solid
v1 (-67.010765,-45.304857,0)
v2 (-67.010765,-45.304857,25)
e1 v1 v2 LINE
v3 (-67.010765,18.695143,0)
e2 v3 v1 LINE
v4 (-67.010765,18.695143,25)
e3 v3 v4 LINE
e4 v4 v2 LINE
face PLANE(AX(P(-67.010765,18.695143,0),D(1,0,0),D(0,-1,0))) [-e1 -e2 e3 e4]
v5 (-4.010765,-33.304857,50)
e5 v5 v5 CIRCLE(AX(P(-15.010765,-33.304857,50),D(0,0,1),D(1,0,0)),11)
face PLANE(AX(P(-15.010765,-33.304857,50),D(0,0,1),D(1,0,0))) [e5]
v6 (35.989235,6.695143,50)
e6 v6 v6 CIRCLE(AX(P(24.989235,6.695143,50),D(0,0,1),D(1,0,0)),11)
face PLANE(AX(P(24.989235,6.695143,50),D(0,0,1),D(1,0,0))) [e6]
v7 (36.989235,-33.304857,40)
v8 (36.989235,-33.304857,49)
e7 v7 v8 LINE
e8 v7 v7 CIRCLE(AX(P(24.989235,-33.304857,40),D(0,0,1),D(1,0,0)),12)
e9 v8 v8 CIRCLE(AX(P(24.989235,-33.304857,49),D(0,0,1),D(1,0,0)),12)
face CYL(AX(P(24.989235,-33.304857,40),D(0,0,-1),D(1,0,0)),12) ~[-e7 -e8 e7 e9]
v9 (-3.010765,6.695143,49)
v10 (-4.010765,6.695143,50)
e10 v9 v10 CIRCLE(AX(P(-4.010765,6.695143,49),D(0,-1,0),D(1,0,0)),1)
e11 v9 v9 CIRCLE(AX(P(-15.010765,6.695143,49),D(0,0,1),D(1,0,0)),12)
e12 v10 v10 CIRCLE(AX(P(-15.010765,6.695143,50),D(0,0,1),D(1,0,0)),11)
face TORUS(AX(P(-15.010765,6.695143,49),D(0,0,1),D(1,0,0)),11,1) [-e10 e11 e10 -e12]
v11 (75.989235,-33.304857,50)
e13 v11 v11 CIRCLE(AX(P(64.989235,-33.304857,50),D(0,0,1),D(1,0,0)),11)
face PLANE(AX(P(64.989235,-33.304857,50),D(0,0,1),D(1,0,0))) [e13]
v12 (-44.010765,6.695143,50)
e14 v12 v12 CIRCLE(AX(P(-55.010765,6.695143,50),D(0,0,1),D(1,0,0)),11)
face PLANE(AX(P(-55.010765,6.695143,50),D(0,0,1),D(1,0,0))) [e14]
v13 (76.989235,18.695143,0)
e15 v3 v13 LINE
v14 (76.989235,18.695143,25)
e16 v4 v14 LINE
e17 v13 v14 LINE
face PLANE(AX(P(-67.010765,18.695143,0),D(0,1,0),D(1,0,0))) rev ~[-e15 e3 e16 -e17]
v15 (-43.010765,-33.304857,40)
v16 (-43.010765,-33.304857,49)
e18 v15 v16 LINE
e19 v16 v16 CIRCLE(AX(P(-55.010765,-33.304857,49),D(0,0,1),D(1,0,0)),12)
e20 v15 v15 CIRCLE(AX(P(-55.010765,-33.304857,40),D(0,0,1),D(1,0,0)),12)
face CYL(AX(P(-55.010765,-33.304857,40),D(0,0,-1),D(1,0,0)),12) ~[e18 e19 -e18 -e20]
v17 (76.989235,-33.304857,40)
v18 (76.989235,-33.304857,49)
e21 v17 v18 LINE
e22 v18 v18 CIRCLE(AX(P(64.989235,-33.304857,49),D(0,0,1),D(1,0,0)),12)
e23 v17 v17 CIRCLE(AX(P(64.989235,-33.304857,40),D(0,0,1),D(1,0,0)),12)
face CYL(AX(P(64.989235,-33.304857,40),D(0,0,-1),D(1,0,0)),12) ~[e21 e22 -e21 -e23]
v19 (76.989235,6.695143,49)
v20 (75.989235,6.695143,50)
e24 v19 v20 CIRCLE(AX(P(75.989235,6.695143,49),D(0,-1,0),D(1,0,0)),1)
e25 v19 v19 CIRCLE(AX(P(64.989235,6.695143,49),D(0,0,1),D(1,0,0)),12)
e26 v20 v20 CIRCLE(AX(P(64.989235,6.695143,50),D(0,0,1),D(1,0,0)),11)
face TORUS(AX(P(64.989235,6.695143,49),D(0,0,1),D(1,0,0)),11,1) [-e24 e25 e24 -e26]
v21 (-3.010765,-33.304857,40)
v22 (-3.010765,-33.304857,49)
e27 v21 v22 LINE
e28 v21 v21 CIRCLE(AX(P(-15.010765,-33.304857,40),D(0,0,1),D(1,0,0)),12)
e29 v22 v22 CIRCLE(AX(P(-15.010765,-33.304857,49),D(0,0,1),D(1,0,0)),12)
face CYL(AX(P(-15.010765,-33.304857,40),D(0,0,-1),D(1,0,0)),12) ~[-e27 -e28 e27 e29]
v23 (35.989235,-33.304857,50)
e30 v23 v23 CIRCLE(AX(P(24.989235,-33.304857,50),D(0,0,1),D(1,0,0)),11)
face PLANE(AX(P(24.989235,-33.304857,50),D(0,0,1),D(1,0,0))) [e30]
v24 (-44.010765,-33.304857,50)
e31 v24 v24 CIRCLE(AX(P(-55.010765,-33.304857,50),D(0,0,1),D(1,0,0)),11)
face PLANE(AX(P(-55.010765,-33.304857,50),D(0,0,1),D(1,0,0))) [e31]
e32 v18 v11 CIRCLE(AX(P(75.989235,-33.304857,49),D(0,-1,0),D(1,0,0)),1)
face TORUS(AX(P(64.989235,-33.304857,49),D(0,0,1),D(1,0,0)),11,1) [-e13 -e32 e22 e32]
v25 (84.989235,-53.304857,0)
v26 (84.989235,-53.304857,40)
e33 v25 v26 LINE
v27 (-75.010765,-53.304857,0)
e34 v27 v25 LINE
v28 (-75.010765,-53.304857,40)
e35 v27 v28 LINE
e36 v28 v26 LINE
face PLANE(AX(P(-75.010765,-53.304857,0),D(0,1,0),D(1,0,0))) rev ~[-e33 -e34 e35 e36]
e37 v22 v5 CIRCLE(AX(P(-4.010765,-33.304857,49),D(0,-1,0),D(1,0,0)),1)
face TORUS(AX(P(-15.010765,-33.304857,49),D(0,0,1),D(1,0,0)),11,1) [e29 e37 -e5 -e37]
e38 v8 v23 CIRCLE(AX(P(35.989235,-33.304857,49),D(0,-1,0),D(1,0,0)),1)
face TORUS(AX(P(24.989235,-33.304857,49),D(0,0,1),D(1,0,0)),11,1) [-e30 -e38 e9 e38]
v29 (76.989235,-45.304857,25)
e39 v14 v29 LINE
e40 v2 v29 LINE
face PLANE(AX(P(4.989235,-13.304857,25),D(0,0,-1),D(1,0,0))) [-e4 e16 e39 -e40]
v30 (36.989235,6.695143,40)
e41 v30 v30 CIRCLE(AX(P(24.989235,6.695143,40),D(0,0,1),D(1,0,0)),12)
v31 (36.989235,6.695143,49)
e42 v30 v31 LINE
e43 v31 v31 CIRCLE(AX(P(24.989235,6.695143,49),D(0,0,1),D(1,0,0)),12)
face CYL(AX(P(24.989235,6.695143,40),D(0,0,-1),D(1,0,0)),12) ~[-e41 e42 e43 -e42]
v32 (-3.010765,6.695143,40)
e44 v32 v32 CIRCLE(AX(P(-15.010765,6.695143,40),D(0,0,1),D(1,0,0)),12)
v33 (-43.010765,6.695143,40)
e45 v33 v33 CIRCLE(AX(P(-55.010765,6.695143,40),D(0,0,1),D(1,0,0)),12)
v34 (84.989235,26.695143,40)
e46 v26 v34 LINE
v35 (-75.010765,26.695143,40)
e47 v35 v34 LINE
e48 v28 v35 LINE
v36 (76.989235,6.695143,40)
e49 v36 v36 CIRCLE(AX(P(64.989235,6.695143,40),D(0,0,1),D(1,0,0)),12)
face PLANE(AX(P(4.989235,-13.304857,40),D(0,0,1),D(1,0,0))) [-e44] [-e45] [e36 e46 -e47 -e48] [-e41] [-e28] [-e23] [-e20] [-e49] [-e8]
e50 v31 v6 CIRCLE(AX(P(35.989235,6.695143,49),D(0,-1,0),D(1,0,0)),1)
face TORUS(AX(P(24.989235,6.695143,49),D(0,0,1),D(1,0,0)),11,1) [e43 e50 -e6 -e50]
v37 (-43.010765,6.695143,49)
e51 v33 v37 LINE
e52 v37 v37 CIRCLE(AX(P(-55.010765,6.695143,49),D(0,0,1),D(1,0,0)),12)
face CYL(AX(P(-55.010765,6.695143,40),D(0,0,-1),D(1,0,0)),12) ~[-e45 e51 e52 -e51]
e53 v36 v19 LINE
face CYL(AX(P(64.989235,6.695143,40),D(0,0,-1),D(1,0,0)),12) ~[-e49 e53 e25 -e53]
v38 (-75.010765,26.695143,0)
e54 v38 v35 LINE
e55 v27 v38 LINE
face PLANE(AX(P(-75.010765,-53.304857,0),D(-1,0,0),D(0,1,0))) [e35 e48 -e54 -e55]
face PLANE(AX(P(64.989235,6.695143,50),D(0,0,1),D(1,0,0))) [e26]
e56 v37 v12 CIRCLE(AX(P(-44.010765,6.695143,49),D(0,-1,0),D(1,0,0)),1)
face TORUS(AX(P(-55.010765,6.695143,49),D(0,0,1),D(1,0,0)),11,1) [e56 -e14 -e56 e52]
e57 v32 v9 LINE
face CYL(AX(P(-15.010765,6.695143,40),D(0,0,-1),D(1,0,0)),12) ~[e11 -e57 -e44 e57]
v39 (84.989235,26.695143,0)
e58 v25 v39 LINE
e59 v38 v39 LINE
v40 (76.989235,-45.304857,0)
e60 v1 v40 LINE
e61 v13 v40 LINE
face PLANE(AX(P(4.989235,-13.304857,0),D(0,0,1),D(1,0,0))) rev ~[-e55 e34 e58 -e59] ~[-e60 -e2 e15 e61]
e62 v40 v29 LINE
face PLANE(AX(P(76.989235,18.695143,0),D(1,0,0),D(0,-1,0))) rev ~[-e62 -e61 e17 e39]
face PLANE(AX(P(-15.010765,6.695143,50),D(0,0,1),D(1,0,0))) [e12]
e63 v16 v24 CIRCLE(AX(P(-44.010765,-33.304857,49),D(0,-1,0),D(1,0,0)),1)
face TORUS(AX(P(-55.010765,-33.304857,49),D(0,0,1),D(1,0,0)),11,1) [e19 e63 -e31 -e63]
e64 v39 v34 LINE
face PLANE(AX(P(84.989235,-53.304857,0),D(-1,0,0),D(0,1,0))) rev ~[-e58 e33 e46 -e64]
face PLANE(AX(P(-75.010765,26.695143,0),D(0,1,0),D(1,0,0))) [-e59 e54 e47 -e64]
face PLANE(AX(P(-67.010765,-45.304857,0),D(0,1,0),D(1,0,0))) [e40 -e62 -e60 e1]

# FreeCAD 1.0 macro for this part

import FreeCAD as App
import Part
import Sketcher

V = App.Vector
Q = App.Units.Quantity


def edges_at(feature, points):
    """Names of the edges that pass closest to the given points."""
    edges = feature.Shape.Edges
    near = lambda p: min(range(len(edges)), key=lambda i: edges[i].distToShape(Part.Vertex(*p))[0])
    return sorted({f"Edge{near(p) + 1}" for p in points})


def add_polygon(sketch, points):
    """Adds a closed chain of lines whose ends are joined by coincident constraints."""
    first, n = sketch.GeometryCount, len(points)
    for a, b in zip(points, points[1:] + points[:1]):
        sketch.addGeometry(Part.LineSegment(App.Vector(*a, 0), App.Vector(*b, 0)), False)
    for i in range(n):
        sketch.addConstraint(Sketcher.Constraint("Coincident", first + i, 2, first + (i + 1) % n, 1))

doc = App.newDocument("Part")
body = doc.addObject("PartDesign::Body", "Body")

# Sketch on XY plane
sketch1 = doc.addObject("Sketcher::SketchObject", "Sketch")
body.addObject(sketch1)
sketch1.AttachmentSupport = (doc.XY_Plane, [""])
sketch1.MapMode = "FlatFace"
add_polygon(sketch1, [(-75, 27), (-75, -53), (85, -53), (85, 27)])  # lines 0-3
sketch1.addConstraint(Sketcher.Constraint("Vertical", 0))
sketch1.addConstraint(Sketcher.Constraint("Horizontal", 1))
sketch1.addConstraint(Sketcher.Constraint("Vertical", 2))
sketch1.addConstraint(Sketcher.Constraint("Horizontal", 3))
sketch1.addConstraint(Sketcher.Constraint("DistanceX", 1, 1, 1, 2, Q("160 mm")))
sketch1.addConstraint(Sketcher.Constraint("DistanceY", 0, 2, 0, 1, Q("80 mm")))
sketch1.addConstraint(Sketcher.Constraint("DistanceX", 0, 2, -1, 1, Q("75.010765 mm")))
sketch1.addConstraint(Sketcher.Constraint("DistanceY", 0, 2, -1, 1, Q("53.304857 mm")))
pad1 = doc.addObject("PartDesign::Pad", "Pad")
body.addObject(pad1)
pad1.Profile = sketch1
pad1.Length = 40

# Sketch on XY plane
sketch2 = doc.addObject("Sketcher::SketchObject", "Sketch001")
body.addObject(sketch2)
sketch2.AttachmentSupport = (doc.XY_Plane, [""])
sketch2.MapMode = "FlatFace"
add_polygon(sketch2, [(-67, -45), (-67, 19), (77, 19), (77, -45)])  # lines 0-3
sketch2.addConstraint(Sketcher.Constraint("Vertical", 0))
sketch2.addConstraint(Sketcher.Constraint("Horizontal", 1))
sketch2.addConstraint(Sketcher.Constraint("Vertical", 2))
sketch2.addConstraint(Sketcher.Constraint("Horizontal", 3))
sketch2.addConstraint(Sketcher.Constraint("DistanceX", 1, 1, 1, 2, Q("144 mm")))
sketch2.addConstraint(Sketcher.Constraint("DistanceY", 0, 1, 0, 2, Q("64 mm")))
sketch2.addConstraint(Sketcher.Constraint("DistanceX", 0, 2, -1, 1, Q("67.010765 mm")))
sketch2.addConstraint(Sketcher.Constraint("DistanceY", -1, 1, 0, 2, Q("18.695143 mm")))
pocket1 = doc.addObject("PartDesign::Pocket", "Pocket")
body.addObject(pocket1)
pocket1.Profile = sketch2
pocket1.Length = 25
pocket1.Reversed = True

# Sketch on XY plane
sketch3 = doc.addObject("Sketcher::SketchObject", "Sketch002")
body.addObject(sketch3)
sketch3.AttachmentSupport = (doc.XY_Plane, [""])
sketch3.MapMode = "FlatFace"
sketch3.AttachmentOffset = App.Placement(V(0, 0, 40), App.Rotation())
sketch3.addGeometry(Part.Circle(V(-55, 7, 0), V(0, 0, 1), 12), False)
sketch3.addGeometry(Part.Circle(V(-55, -33, 0), V(0, 0, 1), 12), False)
sketch3.addGeometry(Part.Circle(V(-15, 7, 0), V(0, 0, 1), 12), False)
sketch3.addGeometry(Part.Circle(V(-15, -33, 0), V(0, 0, 1), 12), False)
sketch3.addGeometry(Part.Circle(V(25, 7, 0), V(0, 0, 1), 12), False)
sketch3.addGeometry(Part.Circle(V(25, -33, 0), V(0, 0, 1), 12), False)
sketch3.addGeometry(Part.Circle(V(65, 7, 0), V(0, 0, 1), 12), False)
sketch3.addGeometry(Part.Circle(V(65, -33, 0), V(0, 0, 1), 12), False)
sketch3.addConstraint(Sketcher.Constraint("Equal", 0, 1))
sketch3.addConstraint(Sketcher.Constraint("Equal", 1, 2))
sketch3.addConstraint(Sketcher.Constraint("Equal", 2, 3))
sketch3.addConstraint(Sketcher.Constraint("Equal", 3, 4))
sketch3.addConstraint(Sketcher.Constraint("Equal", 4, 5))
sketch3.addConstraint(Sketcher.Constraint("Equal", 5, 6))
sketch3.addConstraint(Sketcher.Constraint("Equal", 6, 7))
sketch3.addConstraint(Sketcher.Constraint("Horizontal", 0, 3, 2, 3))
sketch3.addConstraint(Sketcher.Constraint("Horizontal", 1, 3, 3, 3))
sketch3.addConstraint(Sketcher.Constraint("Horizontal", 2, 3, 4, 3))
sketch3.addConstraint(Sketcher.Constraint("Horizontal", 3, 3, 5, 3))
sketch3.addConstraint(Sketcher.Constraint("Horizontal", 4, 3, 6, 3))
sketch3.addConstraint(Sketcher.Constraint("Horizontal", 5, 3, 7, 3))
sketch3.addConstraint(Sketcher.Constraint("Vertical", 0, 3, 1, 3))
sketch3.addConstraint(Sketcher.Constraint("Vertical", 2, 3, 3, 3))
sketch3.addConstraint(Sketcher.Constraint("Vertical", 4, 3, 5, 3))
sketch3.addConstraint(Sketcher.Constraint("Vertical", 6, 3, 7, 3))
sketch3.addConstraint(Sketcher.Constraint("Diameter", 0, Q("24 mm")))
sketch3.addConstraint(Sketcher.Constraint("DistanceY", 1, 3, 0, 3, Q("40 mm")))
sketch3.addConstraint(Sketcher.Constraint("DistanceX", 0, 3, 2, 3, Q("40 mm")))
sketch3.addConstraint(Sketcher.Constraint("DistanceX", 2, 3, 4, 3, Q("40 mm")))
sketch3.addConstraint(Sketcher.Constraint("DistanceX", 4, 3, 6, 3, Q("40 mm")))
sketch3.addConstraint(Sketcher.Constraint("DistanceX", 0, 3, -1, 1, Q("55.010765 mm")))
sketch3.addConstraint(Sketcher.Constraint("DistanceY", -1, 1, 0, 3, Q("6.695143 mm")))
pad2 = doc.addObject("PartDesign::Pad", "Pad001")
body.addObject(pad2)
pad2.Profile = sketch3
pad2.Length = 10
doc.recompute()

fillet = doc.addObject("PartDesign::Fillet", "Fillet")
body.addObject(fillet)
fillet.Base = (pad2, edges_at(pad2, [
    (-67.011, 6.695, 50),
    (-27.011, 6.695, 50),
    (12.989, 6.695, 50),
    (52.989, 6.695, 50),
    (-67.011, -33.305, 50),
    (-27.011, -33.305, 50),
    (12.989, -33.305, 50),
    (52.989, -33.305, 50),
]))
fillet.Radius = 1

doc.recompute()
